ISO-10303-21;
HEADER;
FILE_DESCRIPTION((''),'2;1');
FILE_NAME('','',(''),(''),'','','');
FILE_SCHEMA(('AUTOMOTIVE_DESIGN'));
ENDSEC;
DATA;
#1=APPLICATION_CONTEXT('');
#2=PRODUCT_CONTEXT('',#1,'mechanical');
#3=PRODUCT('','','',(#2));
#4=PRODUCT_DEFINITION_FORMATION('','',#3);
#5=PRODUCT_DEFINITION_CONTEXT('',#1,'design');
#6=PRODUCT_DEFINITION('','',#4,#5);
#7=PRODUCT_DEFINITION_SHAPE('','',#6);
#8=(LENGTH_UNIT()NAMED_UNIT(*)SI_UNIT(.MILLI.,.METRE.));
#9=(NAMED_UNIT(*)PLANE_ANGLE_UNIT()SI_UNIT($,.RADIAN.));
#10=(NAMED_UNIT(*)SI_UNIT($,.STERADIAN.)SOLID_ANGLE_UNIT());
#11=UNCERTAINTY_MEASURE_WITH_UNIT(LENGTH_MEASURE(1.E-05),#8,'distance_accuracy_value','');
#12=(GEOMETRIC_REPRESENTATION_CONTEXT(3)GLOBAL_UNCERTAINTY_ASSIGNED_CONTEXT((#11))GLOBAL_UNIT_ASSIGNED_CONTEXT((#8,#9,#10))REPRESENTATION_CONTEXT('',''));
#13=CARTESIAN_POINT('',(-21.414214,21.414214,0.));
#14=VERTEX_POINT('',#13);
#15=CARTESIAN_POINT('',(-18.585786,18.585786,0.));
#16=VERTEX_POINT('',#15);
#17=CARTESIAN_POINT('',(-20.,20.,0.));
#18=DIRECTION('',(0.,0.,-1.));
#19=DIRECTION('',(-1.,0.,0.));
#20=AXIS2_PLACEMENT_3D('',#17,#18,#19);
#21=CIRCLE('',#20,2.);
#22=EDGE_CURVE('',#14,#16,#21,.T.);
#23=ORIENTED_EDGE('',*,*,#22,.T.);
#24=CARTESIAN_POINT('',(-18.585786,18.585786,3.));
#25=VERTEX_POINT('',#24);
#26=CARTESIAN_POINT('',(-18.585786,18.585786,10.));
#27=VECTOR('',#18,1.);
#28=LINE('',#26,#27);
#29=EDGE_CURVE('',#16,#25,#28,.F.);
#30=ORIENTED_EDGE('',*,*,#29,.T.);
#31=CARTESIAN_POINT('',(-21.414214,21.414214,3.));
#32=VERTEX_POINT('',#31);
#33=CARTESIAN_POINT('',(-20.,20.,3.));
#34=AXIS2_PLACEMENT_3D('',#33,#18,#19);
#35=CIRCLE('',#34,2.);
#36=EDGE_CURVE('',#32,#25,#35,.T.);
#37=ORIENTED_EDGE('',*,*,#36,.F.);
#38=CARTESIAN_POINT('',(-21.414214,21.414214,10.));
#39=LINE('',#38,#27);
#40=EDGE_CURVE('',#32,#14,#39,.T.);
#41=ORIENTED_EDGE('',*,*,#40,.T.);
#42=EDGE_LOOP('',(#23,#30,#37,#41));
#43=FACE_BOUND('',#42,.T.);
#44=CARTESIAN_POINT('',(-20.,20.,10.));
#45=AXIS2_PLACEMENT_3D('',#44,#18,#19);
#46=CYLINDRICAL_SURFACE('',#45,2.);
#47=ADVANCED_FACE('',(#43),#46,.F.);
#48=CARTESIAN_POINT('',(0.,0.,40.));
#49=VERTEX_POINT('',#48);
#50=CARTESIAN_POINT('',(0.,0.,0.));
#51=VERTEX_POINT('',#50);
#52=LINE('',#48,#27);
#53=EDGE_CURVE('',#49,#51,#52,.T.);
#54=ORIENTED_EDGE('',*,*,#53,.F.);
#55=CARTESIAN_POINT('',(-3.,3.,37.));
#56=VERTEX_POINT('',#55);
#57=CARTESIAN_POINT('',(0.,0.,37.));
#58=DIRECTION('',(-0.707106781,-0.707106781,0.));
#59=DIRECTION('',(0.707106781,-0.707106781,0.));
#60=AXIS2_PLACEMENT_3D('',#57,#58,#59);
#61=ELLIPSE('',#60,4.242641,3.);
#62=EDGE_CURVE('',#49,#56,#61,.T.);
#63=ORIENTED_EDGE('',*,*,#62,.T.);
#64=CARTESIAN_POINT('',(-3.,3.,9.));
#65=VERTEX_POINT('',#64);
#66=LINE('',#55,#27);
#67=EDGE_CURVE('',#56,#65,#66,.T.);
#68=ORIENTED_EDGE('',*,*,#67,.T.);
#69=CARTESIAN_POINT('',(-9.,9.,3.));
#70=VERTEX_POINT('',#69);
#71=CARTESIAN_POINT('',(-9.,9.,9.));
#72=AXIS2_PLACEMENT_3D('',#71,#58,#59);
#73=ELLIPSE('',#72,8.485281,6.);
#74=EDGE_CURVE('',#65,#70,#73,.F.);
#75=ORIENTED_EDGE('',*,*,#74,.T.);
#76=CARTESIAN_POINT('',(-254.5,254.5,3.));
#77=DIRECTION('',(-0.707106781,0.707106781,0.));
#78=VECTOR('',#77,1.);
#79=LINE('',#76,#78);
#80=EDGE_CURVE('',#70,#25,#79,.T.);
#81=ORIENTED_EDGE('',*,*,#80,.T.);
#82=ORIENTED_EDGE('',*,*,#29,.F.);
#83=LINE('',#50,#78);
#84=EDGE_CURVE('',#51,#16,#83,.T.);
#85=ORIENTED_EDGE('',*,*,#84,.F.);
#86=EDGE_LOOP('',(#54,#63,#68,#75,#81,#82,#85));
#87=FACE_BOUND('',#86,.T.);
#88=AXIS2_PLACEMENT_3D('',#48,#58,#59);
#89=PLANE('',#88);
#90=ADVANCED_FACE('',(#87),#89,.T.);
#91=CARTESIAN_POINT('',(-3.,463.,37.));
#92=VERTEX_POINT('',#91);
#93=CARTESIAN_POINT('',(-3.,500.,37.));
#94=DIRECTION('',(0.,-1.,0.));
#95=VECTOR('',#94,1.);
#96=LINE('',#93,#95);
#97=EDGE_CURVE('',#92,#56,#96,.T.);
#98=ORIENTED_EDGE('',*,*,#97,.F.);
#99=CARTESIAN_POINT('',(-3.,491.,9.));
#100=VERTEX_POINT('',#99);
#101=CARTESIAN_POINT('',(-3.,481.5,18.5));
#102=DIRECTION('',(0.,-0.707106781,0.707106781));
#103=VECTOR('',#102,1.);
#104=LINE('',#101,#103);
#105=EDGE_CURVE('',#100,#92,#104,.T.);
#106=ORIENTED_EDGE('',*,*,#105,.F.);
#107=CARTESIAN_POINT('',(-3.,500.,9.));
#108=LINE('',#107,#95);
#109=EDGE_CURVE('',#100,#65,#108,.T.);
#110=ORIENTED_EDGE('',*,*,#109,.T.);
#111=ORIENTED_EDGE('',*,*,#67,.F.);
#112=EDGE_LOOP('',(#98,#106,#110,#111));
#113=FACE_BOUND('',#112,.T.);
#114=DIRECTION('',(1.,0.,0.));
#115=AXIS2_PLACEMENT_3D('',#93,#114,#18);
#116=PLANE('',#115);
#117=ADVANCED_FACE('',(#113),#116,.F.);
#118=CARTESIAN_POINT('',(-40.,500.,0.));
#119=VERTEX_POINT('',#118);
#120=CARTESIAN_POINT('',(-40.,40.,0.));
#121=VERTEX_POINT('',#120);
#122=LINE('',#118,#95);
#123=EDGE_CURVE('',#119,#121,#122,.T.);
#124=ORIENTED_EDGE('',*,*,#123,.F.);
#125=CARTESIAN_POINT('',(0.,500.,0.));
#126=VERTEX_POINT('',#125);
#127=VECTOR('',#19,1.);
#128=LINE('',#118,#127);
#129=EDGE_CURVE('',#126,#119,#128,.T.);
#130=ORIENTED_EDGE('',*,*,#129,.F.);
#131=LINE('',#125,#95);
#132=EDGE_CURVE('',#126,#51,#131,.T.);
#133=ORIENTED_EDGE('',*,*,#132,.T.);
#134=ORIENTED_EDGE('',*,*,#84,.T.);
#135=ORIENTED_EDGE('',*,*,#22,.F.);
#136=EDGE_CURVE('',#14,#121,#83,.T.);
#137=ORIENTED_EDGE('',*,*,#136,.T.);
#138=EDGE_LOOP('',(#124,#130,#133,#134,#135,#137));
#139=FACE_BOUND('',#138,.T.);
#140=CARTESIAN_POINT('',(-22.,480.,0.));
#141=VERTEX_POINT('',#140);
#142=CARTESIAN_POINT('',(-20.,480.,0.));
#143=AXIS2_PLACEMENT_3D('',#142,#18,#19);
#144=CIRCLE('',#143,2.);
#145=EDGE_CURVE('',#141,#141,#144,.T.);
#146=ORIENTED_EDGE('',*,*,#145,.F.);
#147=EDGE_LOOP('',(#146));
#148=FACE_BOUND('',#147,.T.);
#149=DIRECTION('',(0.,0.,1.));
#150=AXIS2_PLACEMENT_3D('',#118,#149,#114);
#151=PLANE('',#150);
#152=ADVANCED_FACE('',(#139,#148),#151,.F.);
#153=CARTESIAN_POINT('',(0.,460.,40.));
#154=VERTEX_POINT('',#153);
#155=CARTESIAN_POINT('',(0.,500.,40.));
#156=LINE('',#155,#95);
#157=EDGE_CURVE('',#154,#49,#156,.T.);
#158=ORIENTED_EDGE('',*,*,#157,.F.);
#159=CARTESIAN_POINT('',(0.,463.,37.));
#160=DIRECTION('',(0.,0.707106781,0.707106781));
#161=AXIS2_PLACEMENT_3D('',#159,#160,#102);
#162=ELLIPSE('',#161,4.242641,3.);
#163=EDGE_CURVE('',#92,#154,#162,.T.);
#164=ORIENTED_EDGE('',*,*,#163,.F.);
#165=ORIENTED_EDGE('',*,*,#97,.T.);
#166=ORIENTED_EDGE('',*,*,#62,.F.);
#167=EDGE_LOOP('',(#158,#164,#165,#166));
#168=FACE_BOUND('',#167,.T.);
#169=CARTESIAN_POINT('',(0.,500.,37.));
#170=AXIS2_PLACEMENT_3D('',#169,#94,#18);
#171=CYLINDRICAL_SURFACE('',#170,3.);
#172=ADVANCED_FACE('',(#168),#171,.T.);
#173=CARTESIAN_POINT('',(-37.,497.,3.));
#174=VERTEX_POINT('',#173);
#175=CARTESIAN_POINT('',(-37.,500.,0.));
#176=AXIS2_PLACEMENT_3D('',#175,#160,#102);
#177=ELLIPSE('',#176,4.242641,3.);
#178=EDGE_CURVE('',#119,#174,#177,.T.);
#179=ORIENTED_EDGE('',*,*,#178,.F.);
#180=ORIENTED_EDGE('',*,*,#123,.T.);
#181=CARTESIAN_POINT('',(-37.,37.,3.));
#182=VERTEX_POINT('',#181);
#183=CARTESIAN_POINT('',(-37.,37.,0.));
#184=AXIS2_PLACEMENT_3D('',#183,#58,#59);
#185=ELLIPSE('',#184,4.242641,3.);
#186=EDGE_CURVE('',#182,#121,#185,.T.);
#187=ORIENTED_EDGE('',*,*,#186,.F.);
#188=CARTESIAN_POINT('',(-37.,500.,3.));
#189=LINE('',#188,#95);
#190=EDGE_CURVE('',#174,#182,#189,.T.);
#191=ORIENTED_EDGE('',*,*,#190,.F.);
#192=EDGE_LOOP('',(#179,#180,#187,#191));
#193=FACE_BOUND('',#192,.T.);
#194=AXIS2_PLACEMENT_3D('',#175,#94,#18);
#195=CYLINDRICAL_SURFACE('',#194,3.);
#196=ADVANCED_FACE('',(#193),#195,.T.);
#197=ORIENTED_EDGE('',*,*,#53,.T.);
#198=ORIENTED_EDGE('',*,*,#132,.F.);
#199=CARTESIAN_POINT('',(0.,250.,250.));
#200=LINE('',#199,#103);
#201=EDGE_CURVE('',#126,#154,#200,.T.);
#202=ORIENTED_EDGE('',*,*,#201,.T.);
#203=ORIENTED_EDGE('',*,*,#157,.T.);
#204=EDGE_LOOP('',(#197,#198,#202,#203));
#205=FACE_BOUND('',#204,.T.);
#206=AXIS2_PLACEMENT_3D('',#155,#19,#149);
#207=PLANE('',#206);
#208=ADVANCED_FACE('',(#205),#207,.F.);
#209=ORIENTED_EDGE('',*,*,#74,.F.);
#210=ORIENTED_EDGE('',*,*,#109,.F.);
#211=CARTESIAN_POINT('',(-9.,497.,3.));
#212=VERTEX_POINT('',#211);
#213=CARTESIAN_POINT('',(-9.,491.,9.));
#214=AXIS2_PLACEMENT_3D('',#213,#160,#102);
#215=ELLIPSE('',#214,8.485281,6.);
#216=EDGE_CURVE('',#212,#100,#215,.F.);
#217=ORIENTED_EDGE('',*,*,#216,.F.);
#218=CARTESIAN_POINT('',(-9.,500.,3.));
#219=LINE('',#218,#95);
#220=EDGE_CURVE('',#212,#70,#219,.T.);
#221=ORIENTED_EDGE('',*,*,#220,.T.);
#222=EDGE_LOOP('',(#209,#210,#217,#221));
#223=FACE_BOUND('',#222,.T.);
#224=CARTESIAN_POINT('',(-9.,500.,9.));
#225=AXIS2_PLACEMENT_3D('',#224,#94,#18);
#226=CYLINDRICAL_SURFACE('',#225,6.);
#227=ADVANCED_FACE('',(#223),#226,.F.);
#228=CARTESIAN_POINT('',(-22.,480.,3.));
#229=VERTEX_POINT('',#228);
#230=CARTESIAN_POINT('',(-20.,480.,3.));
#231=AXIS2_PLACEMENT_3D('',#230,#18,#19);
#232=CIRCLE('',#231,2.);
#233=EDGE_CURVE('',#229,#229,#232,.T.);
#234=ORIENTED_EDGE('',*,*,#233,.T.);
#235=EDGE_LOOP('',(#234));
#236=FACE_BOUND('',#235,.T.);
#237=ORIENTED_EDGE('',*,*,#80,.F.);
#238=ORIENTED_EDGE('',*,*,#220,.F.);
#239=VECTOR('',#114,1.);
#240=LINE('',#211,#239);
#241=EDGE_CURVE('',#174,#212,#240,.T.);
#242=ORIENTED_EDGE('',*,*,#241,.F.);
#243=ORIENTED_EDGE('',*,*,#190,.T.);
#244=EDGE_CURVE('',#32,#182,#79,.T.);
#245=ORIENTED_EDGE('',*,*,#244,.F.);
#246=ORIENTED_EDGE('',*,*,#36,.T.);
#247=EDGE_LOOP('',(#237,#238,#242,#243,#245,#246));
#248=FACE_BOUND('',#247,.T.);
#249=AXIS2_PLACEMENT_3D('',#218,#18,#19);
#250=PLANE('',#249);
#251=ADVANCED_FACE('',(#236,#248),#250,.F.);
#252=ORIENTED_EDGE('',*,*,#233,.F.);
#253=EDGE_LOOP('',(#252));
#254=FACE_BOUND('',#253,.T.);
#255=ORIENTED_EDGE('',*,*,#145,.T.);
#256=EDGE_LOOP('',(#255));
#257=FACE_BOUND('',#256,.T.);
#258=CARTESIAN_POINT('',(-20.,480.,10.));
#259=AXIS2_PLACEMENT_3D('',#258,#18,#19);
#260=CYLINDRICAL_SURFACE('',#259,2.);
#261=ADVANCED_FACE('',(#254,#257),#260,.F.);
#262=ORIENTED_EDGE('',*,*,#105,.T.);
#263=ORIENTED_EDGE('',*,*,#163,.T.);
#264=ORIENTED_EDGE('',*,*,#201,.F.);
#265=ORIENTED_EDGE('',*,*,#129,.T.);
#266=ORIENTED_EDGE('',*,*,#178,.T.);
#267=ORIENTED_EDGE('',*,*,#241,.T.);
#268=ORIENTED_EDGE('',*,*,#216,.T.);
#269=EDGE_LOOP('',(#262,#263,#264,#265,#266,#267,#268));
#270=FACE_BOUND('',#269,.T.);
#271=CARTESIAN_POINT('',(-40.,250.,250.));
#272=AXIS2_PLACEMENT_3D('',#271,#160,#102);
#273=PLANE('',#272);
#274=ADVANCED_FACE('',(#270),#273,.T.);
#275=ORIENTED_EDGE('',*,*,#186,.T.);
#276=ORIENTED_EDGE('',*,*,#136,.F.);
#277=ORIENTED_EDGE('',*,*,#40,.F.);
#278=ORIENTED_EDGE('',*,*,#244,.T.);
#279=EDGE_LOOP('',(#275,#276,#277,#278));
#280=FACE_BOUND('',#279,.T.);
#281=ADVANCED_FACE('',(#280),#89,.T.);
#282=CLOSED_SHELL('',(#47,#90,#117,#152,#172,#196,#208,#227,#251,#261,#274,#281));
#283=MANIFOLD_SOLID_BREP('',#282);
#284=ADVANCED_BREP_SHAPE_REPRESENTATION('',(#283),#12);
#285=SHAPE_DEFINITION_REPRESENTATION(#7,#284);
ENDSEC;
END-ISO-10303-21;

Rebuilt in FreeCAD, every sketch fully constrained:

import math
import FreeCAD as App
import Part
import Sketcher


def add_polygon(sketch, points):
    """Adds a closed chain of lines whose ends are joined by coincident constraints."""
    first, n = sketch.GeometryCount, len(points)
    for a, b in zip(points, points[1:] + points[:1]):
        sketch.addGeometry(Part.LineSegment(App.Vector(*a, 0), App.Vector(*b, 0)), False)
    for i in range(n):
        sketch.addConstraint(Sketcher.Constraint("Coincident", first + i, 2, first + (i + 1) % n, 1))

doc = App.newDocument("Part")
body = doc.addObject("PartDesign::Body", "Body")

# Sketch on XZ plane
sketch1 = body.newObject("Sketcher::SketchObject", "Sketch")
sketch1.AttachmentSupport = (doc.getObject("XZ_Plane"), [""])
sketch1.MapMode = "FlatFace"
sketch1.addGeometry(Part.LineSegment(App.Vector(0, 40, 0), App.Vector(0, 0, 0)), False)
sketch1.addGeometry(Part.LineSegment(App.Vector(0, 0, 0), App.Vector(-40, 0, 0)), False)
sketch1.addGeometry(Part.ArcOfCircle(Part.Circle(App.Vector(-37, 0, 0), App.Vector(0, 0, 1), 3), math.radians(90), math.radians(180)), False)
sketch1.addGeometry(Part.LineSegment(App.Vector(-37, 3, 0), App.Vector(-9, 3, 0)), False)
sketch1.addGeometry(Part.ArcOfCircle(Part.Circle(App.Vector(-9, 9, 0), App.Vector(0, 0, 1), 6), math.radians(-90), math.radians(0)), False)
sketch1.addGeometry(Part.LineSegment(App.Vector(-3, 9, 0), App.Vector(-3, 37, 0)), False)
sketch1.addGeometry(Part.ArcOfCircle(Part.Circle(App.Vector(0, 37, 0), App.Vector(0, 0, 1), 3), math.radians(90), math.radians(180)), False)
sketch1.addConstraint(Sketcher.Constraint("Coincident", 0, 2, 1, 1))
sketch1.addConstraint(Sketcher.Constraint("Coincident", 1, 2, 2, 2))
sketch1.addConstraint(Sketcher.Constraint("Tangent", 2, 1, 3, 1))
sketch1.addConstraint(Sketcher.Constraint("Tangent", 3, 2, 4, 1))
sketch1.addConstraint(Sketcher.Constraint("Tangent", 4, 2, 5, 1))
sketch1.addConstraint(Sketcher.Constraint("Tangent", 5, 2, 6, 2))
sketch1.addConstraint(Sketcher.Constraint("Coincident", 6, 1, 0, 1))
sketch1.addConstraint(Sketcher.Constraint("Vertical", 0))
sketch1.addConstraint(Sketcher.Constraint("Horizontal", 1))
sketch1.addConstraint(Sketcher.Constraint("Horizontal", 3))
sketch1.addConstraint(Sketcher.Constraint("Vertical", 5))
sketch1.addConstraint(Sketcher.Constraint("Coincident", 0, 2, -1, 1))
sketch1.addConstraint(Sketcher.Constraint("Equal", 2, 6))
sketch1.addConstraint(Sketcher.Constraint("PointOnObject", 2, 3, -1))
sketch1.addConstraint(Sketcher.Constraint("PointOnObject", 6, 3, -2))
sketch1.addConstraint(Sketcher.Constraint("Equal", 1, 0))
sketch1.addConstraint(Sketcher.Constraint("Radius", 2, 3.0))
sketch1.addConstraint(Sketcher.Constraint("Radius", 4, 6.0))
sketch1.addConstraint(Sketcher.Constraint("DistanceX", 1, 2, 1, 1, 40.0))
pad1 = body.newObject("PartDesign::Pad", "Pad")
pad1.Profile = sketch1
pad1.Length = 500
pad1.Reversed = True

# Sketch on YZ plane
sketch2 = body.newObject("Sketcher::SketchObject", "Sketch001")
sketch2.AttachmentSupport = (doc.getObject("YZ_Plane"), [""])
sketch2.MapMode = "FlatFace"
add_polygon(sketch2, [(500, 0), (500, 40), (460, 40)])  # lines 0-2
sketch2.addConstraint(Sketcher.Constraint("Vertical", 0))
sketch2.addConstraint(Sketcher.Constraint("Horizontal", 1))
sketch2.addConstraint(Sketcher.Constraint("PointOnObject", 2, 2, -1))
sketch2.addConstraint(Sketcher.Constraint("Equal", 1, 0))
sketch2.addConstraint(Sketcher.Constraint("DistanceX", 1, 2, 1, 1, 40.0))
sketch2.addConstraint(Sketcher.Constraint("DistanceX", -1, 1, 0, 2, 500.0))
pocket1 = body.newObject("PartDesign::Pocket", "Pocket")
pocket1.Profile = sketch2
pocket1.Type = "ThroughAll"

# Sketch on XY plane
sketch3 = body.newObject("Sketcher::SketchObject", "Sketch002")
sketch3.AttachmentSupport = (doc.getObject("XY_Plane"), [""])
sketch3.MapMode = "FlatFace"
add_polygon(sketch3, [(-40, 40), (0, 0), (-40, 0)])  # lines 0-2
sketch3.addConstraint(Sketcher.Constraint("Horizontal", 1))
sketch3.addConstraint(Sketcher.Constraint("Vertical", 2))
sketch3.addConstraint(Sketcher.Constraint("Coincident", 0, 2, -1, 1))
sketch3.addConstraint(Sketcher.Constraint("Equal", 1, 2))
sketch3.addConstraint(Sketcher.Constraint("DistanceX", 1, 2, 1, 1, 40.0))
pocket2 = body.newObject("PartDesign::Pocket", "Pocket001")
pocket2.Profile = sketch3
pocket2.Type = "ThroughAll"
pocket2.Reversed = True

# Sketch on XY plane
sketch4 = body.newObject("Sketcher::SketchObject", "Sketch003")
sketch4.AttachmentSupport = (doc.getObject("XY_Plane"), [""])
sketch4.MapMode = "FlatFace"
sketch4.addGeometry(Part.Circle(App.Vector(-20, 480, 0), App.Vector(0, 0, 1), 2), False)
sketch4.addGeometry(Part.Circle(App.Vector(-20, 20, 0), App.Vector(0, 0, 1), 2), False)
sketch4.addConstraint(Sketcher.Constraint("Equal", 0, 1))
sketch4.addConstraint(Sketcher.Constraint("Vertical", 0, 3, 1, 3))
sketch4.addConstraint(Sketcher.Constraint("Diameter", 0, 4.0))
sketch4.addConstraint(Sketcher.Constraint("DistanceX", 0, 3, -1, 1, 20.0))
sketch4.addConstraint(Sketcher.Constraint("DistanceY", -1, 1, 0, 3, 480.0))
sketch4.addConstraint(Sketcher.Constraint("DistanceY", -1, 1, 1, 3, 20.0))
pocket3 = body.newObject("PartDesign::Pocket", "Pocket002")
pocket3.Profile = sketch4
pocket3.Length = 10
pocket3.Reversed = True

doc.recompute()
